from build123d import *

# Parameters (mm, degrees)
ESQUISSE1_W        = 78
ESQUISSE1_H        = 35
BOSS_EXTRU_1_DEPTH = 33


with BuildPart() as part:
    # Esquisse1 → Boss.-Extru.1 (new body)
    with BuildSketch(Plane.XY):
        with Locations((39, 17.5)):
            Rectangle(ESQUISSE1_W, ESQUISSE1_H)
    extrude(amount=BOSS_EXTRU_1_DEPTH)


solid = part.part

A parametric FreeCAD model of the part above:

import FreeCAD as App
import Part
import Sketcher


def add_polygon(sketch, points):
    """Adds a closed chain of lines whose ends are joined by coincident constraints."""
    first, n = sketch.GeometryCount, len(points)
    for a, b in zip(points, points[1:] + points[:1]):
        sketch.addGeometry(Part.LineSegment(App.Vector(*a, 0), App.Vector(*b, 0)), False)
    for i in range(n):
        sketch.addConstraint(Sketcher.Constraint("Coincident", first + i, 2, first + (i + 1) % n, 1))

doc = App.newDocument("Part")
body = doc.addObject("PartDesign::Body", "Body")

sketch1 = doc.addObject("Sketcher::SketchObject", "Sketch")
body.addObject(sketch1)
sketch1.AttachmentSupport = (doc.XY_Plane, [""])
sketch1.MapMode = "FlatFace"
add_polygon(sketch1, [(0, 35), (0, 0), (78, 0), (78, 35)])
sketch1.addConstraint(Sketcher.Constraint("Vertical", 0))
sketch1.addConstraint(Sketcher.Constraint("Horizontal", 1))
sketch1.addConstraint(Sketcher.Constraint("Vertical", 2))
sketch1.addConstraint(Sketcher.Constraint("Horizontal", 3))
sketch1.addConstraint(Sketcher.Constraint("Coincident", 0, 2, -1, 1))
sketch1.addConstraint(Sketcher.Constraint("DistanceX", 1, 1, 1, 2, 78.0))
sketch1.addConstraint(Sketcher.Constraint("DistanceY", 0, 2, 0, 1, 35.0))
pad1 = doc.addObject("PartDesign::Pad", "Pad")
body.addObject(pad1)
pad1.Profile = sketch1
pad1.Length = 33

doc.recompute()
